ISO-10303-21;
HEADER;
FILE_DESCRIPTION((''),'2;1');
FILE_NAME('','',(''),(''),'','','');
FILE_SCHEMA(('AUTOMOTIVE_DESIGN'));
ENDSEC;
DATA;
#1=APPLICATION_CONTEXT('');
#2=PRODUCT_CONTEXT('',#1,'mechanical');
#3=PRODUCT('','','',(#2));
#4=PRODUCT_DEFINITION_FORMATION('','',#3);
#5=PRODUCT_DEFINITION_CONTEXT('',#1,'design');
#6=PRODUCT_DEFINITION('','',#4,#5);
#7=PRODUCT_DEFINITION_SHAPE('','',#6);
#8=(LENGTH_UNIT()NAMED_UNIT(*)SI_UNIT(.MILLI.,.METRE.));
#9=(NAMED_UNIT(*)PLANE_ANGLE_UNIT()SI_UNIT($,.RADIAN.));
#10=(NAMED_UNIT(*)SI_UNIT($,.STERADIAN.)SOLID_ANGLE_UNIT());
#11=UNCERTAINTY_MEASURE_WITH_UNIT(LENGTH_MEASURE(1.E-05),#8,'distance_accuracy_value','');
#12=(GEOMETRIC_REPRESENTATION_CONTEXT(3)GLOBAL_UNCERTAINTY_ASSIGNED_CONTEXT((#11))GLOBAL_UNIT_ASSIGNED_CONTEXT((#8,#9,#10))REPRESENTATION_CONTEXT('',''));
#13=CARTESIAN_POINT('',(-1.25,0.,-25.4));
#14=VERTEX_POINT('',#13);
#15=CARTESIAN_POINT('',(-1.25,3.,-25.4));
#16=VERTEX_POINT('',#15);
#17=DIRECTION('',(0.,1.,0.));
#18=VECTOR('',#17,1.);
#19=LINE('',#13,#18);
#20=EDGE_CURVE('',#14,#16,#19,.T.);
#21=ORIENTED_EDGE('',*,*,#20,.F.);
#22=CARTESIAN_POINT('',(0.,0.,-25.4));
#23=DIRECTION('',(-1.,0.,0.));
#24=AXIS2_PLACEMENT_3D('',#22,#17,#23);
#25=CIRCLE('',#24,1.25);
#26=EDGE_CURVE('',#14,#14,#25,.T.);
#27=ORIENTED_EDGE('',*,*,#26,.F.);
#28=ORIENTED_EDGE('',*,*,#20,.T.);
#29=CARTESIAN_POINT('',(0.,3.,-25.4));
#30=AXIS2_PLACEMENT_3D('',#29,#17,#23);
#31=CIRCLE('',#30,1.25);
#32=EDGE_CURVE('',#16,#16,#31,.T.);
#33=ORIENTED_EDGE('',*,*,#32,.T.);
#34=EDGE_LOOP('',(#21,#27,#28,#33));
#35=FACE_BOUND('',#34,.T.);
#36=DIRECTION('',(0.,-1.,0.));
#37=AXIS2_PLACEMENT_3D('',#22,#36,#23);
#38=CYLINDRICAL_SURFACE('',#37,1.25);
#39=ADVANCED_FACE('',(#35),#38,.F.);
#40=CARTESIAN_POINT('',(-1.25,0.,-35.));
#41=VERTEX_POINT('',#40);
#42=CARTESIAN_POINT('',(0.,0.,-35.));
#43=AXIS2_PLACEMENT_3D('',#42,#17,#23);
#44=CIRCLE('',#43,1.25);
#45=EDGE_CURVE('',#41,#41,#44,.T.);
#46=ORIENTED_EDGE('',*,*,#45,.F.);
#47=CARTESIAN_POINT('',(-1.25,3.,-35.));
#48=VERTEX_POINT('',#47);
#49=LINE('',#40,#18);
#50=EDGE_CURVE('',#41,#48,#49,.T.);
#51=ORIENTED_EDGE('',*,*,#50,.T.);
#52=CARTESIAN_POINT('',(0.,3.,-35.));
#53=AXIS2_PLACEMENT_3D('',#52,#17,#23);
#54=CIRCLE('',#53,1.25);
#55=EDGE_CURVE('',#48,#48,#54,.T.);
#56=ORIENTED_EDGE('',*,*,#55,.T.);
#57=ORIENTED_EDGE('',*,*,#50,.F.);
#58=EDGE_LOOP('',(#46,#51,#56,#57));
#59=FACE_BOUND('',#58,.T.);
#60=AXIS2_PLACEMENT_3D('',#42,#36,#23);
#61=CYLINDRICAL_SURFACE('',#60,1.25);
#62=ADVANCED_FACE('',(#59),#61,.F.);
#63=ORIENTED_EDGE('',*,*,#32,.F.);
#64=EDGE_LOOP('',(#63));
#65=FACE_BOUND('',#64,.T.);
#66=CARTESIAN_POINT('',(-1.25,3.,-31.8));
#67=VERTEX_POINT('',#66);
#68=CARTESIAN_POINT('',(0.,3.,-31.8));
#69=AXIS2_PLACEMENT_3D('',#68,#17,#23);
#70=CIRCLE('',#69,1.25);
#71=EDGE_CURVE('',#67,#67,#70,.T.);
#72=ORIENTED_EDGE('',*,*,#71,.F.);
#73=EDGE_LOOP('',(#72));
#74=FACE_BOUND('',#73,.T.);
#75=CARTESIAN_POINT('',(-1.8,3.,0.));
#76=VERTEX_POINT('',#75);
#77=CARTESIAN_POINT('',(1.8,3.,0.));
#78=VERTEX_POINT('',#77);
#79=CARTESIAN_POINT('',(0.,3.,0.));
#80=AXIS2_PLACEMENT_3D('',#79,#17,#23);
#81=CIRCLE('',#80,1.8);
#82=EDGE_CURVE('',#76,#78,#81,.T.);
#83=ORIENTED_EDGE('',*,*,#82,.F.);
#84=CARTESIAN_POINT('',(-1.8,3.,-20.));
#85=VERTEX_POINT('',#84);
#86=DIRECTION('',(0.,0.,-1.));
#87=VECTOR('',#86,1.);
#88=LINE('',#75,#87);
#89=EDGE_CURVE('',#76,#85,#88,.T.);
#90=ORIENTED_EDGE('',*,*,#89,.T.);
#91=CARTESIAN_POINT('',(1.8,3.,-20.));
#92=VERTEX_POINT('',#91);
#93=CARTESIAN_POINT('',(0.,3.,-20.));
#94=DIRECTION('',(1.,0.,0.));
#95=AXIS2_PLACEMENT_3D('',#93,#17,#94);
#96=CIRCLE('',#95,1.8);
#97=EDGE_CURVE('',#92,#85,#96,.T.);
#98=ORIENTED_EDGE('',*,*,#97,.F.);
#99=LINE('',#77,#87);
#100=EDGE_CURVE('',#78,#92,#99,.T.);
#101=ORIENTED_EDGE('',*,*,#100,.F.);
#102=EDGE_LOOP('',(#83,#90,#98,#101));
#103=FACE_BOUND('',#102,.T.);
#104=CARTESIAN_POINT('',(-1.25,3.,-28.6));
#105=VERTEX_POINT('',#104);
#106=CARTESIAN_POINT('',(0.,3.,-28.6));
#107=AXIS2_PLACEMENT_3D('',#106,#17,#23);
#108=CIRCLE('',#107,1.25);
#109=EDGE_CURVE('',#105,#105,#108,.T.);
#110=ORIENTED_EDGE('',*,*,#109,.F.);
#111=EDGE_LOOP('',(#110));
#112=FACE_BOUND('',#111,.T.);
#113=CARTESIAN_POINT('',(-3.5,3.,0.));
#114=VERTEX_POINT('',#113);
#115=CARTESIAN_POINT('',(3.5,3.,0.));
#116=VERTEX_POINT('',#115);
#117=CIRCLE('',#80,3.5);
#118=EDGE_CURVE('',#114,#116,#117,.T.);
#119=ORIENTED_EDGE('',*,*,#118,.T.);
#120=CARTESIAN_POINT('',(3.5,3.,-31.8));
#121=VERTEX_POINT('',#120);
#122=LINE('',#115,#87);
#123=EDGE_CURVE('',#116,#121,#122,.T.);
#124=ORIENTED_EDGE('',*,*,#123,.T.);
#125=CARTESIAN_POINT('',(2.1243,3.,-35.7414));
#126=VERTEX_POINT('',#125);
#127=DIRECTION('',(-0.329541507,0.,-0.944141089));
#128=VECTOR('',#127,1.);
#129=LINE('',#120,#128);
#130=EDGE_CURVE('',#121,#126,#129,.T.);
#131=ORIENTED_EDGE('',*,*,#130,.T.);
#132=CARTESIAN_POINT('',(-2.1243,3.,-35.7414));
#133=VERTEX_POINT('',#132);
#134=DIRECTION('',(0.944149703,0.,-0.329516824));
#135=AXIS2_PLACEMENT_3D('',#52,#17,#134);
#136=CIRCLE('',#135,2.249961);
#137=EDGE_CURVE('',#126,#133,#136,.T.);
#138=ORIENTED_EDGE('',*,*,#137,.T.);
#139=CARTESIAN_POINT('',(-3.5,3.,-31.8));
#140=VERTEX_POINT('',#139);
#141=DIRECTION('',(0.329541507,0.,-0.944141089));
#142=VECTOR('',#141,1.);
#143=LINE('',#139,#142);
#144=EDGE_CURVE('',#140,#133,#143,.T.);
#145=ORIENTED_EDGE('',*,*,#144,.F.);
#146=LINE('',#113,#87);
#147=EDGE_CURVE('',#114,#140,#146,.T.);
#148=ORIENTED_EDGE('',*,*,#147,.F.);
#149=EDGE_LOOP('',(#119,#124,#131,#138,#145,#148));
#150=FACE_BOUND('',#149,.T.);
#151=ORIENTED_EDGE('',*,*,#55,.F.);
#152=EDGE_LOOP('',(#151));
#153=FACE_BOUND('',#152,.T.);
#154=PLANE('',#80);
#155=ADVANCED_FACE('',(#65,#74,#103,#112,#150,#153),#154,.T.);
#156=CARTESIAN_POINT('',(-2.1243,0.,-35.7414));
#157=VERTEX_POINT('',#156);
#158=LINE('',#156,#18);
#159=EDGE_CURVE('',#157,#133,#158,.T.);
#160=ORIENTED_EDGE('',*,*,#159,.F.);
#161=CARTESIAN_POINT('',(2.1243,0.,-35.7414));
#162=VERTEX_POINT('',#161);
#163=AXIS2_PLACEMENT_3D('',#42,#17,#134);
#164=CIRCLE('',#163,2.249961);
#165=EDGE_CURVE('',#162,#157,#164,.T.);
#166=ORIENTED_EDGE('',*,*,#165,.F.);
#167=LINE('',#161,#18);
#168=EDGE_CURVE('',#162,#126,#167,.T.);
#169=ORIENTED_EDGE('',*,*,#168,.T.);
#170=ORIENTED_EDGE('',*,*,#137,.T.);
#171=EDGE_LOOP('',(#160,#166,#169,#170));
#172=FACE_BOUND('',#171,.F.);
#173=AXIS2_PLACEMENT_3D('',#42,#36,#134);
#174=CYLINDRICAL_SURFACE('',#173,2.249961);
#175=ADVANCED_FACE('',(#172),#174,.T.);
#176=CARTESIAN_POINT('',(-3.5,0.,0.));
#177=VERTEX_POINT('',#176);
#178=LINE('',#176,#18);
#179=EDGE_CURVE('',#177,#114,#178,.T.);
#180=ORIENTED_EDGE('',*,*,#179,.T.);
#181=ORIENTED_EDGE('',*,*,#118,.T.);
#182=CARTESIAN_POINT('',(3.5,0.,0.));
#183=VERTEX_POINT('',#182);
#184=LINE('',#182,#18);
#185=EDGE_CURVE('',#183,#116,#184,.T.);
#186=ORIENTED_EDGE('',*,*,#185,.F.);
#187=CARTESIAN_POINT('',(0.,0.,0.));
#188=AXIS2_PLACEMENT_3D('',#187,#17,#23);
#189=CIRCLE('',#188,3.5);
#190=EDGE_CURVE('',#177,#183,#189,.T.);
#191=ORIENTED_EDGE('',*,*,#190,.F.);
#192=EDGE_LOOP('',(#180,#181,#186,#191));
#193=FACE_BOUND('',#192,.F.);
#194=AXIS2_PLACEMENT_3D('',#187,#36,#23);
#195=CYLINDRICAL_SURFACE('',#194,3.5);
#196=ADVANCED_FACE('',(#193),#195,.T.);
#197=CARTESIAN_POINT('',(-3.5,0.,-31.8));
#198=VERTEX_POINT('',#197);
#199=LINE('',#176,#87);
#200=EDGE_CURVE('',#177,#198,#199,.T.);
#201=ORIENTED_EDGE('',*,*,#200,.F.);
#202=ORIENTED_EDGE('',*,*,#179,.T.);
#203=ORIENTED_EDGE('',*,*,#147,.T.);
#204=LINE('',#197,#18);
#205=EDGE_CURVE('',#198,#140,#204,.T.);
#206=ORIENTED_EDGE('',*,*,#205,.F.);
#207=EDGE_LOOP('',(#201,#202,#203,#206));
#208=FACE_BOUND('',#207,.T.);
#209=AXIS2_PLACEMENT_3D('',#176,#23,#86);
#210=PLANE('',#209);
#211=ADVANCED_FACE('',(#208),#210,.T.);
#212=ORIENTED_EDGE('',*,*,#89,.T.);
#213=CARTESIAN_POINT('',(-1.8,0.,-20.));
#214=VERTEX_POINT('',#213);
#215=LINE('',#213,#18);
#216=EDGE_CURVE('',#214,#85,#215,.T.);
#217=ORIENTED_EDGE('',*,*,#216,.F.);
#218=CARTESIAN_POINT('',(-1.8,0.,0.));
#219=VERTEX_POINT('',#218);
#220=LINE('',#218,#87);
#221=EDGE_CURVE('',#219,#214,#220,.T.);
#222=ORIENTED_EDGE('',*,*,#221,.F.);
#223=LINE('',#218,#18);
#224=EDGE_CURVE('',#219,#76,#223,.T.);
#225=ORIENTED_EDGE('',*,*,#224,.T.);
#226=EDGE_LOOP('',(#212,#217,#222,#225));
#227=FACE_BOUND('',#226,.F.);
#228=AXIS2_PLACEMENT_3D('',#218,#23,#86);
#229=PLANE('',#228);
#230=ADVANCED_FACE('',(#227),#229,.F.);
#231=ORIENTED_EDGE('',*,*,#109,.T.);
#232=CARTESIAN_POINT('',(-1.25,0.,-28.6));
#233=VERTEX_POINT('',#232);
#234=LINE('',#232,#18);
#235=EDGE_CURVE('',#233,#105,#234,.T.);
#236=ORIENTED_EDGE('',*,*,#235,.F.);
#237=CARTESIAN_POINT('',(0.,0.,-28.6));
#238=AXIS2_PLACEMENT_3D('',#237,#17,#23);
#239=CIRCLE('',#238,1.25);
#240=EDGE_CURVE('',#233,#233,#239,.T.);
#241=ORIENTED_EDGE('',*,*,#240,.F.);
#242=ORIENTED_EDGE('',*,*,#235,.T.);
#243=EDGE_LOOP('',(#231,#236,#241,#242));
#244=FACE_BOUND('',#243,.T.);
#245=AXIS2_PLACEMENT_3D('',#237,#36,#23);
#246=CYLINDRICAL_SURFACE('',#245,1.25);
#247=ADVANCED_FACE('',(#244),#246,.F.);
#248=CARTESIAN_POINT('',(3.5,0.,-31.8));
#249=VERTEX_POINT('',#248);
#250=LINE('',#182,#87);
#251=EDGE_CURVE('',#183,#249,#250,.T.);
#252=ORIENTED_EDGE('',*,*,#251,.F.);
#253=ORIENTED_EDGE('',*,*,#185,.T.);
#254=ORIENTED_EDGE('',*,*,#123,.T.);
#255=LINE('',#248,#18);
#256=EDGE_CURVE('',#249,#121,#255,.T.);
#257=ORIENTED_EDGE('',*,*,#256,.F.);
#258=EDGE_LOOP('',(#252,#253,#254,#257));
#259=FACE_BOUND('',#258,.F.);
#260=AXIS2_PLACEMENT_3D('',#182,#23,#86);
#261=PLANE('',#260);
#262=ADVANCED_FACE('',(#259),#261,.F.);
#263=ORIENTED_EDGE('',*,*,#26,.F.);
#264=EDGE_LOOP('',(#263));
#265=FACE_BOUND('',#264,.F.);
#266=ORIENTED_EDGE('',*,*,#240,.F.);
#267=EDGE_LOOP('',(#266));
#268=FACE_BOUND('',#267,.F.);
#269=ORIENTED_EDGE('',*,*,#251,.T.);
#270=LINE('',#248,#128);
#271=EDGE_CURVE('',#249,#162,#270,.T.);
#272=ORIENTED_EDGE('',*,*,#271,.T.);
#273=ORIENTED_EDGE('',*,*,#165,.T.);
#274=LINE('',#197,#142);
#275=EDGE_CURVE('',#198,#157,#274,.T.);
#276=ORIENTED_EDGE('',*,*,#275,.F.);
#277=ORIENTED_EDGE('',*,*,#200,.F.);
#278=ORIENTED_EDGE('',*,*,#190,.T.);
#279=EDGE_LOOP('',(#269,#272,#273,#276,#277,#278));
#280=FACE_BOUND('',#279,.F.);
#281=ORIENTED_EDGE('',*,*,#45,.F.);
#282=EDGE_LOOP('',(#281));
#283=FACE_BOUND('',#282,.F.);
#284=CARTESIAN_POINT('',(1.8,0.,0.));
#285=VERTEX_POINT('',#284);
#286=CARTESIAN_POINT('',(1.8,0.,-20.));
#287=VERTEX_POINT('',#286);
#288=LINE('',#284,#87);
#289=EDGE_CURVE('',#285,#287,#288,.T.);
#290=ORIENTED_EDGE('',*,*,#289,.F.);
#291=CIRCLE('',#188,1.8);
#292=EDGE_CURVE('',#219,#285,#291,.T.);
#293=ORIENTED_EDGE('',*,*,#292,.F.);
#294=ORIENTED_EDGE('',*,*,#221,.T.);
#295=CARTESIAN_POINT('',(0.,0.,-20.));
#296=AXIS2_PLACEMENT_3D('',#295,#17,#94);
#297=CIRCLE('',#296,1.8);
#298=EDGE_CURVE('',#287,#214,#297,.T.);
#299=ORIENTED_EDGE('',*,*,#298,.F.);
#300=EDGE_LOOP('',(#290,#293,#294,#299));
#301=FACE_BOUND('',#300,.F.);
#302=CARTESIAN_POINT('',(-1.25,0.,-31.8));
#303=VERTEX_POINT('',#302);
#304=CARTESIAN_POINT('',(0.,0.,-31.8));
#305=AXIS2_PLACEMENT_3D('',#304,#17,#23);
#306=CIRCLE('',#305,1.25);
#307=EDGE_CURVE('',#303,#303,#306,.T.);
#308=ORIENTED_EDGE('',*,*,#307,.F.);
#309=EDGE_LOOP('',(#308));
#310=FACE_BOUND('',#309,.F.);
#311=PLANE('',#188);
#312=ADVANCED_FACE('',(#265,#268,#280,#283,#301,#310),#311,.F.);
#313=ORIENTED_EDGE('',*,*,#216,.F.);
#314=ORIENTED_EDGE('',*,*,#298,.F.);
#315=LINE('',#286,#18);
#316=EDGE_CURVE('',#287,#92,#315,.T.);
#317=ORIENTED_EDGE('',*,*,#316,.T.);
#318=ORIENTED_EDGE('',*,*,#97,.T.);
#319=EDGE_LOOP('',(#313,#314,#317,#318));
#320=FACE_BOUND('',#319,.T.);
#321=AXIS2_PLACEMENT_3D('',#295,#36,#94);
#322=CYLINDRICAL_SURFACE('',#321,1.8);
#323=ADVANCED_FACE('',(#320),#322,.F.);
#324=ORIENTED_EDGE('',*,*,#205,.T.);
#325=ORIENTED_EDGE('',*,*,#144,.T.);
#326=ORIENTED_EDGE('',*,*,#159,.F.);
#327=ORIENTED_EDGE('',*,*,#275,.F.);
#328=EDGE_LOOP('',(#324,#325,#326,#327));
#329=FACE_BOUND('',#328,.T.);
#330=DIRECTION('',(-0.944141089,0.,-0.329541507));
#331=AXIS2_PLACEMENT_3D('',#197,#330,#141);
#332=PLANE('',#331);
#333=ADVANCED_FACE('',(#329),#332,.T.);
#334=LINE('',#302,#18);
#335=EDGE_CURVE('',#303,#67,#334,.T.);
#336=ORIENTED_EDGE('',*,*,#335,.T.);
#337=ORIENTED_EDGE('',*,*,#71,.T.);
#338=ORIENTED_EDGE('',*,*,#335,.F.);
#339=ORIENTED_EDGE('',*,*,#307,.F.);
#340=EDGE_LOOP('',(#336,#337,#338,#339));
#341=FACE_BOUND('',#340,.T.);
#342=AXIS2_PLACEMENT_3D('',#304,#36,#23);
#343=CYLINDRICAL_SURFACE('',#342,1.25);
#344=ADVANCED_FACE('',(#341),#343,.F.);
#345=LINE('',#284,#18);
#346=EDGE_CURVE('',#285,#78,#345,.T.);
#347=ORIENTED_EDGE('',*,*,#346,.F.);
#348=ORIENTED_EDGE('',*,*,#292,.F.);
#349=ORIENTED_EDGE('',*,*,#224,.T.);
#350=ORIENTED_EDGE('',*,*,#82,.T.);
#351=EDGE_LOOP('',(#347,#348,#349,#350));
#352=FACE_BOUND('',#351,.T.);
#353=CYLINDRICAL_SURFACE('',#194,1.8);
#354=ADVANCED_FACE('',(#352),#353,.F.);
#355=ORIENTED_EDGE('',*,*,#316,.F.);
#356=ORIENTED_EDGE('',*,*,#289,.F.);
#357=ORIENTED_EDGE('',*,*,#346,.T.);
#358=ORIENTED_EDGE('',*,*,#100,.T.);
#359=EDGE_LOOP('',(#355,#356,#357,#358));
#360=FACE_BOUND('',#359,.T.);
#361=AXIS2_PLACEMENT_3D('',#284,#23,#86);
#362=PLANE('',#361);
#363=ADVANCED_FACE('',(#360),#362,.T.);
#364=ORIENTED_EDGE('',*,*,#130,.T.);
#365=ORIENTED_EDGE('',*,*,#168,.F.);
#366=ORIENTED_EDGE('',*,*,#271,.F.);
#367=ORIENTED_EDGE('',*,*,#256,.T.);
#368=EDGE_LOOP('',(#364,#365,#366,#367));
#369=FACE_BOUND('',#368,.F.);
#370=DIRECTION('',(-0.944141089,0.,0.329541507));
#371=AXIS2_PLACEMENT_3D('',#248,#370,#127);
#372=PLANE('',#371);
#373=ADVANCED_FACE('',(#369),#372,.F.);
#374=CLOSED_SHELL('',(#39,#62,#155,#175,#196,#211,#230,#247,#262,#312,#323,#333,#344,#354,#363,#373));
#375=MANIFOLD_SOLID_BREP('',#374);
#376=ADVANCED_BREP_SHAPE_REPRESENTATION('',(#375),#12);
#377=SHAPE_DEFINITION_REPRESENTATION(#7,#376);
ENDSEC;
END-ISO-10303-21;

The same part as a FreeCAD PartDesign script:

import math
import FreeCAD as App
import Part
import Sketcher
Q = App.Units.Quantity

doc = App.newDocument("Part")
body = doc.addObject("PartDesign::Body", "Body")

# Sketch on XZ plane
sketch1 = body.newObject("Sketcher::SketchObject", "Sketch")
sketch1.AttachmentSupport = (doc.getObject("XZ_Plane"), [""])
sketch1.MapMode = "FlatFace"
sketch1.addGeometry([
    Part.LineSegment(App.Vector(-3.5, -31.8, 0), App.Vector(-3.5, 0, 0)),  # 0
    Part.ArcOfCircle(Part.Circle(App.Vector(0, 0, 0), App.Vector(0, 0, 1), 3.5), math.radians(0), math.radians(180)),  # 1
    Part.LineSegment(App.Vector(3.5, 0, 0), App.Vector(3.5, -31.8, 0)),  # 2
    Part.LineSegment(App.Vector(3.5, -31.8, 0), App.Vector(2.1, -35.7, 0)),  # 3
    Part.ArcOfCircle(Part.Circle(App.Vector(0, -35, 0), App.Vector(0, 0, 1), 2.2), math.radians(-161), math.radians(-19)),  # 4
    Part.LineSegment(App.Vector(-2.1, -35.7, 0), App.Vector(-3.5, -31.8, 0)),  # 5
    Part.Circle(App.Vector(0, -35, 0), App.Vector(0, 0, 1), 1.2),  # 6
    Part.Circle(App.Vector(0, -31.8, 0), App.Vector(0, 0, 1), 1.2),  # 7
    Part.Circle(App.Vector(0, -28.6, 0), App.Vector(0, 0, 1), 1.2),  # 8
    Part.Circle(App.Vector(0, -25.4, 0), App.Vector(0, 0, 1), 1.2),  # 9
    Part.ArcOfCircle(Part.Circle(App.Vector(0, 0, 0), App.Vector(0, 0, 1), 1.8), math.radians(0), math.radians(180)),  # 10
    Part.LineSegment(App.Vector(-1.8, 0, 0), App.Vector(-1.8, -20, 0)),  # 11
    Part.ArcOfCircle(Part.Circle(App.Vector(0, -20, 0), App.Vector(0, 0, 1), 1.8), math.radians(180), math.radians(360)),  # 12
    Part.LineSegment(App.Vector(1.8, -20, 0), App.Vector(1.8, 0, 0)),  # 13
], False)
sketch1.addConstraint([
    Sketcher.Constraint("Tangent", 0, 2, 1, 2),
    Sketcher.Constraint("Tangent", 1, 1, 2, 1),
    Sketcher.Constraint("Coincident", 2, 2, 3, 1),
    Sketcher.Constraint("Tangent", 3, 2, 4, 2),
    Sketcher.Constraint("Tangent", 4, 1, 5, 1),
    Sketcher.Constraint("Coincident", 5, 2, 0, 1),
    Sketcher.Constraint("Tangent", 10, 2, 11, 1),
    Sketcher.Constraint("Tangent", 11, 2, 12, 1),
    Sketcher.Constraint("Tangent", 12, 2, 13, 1),
    Sketcher.Constraint("Tangent", 13, 2, 10, 1),
    Sketcher.Constraint("Vertical", 0),
    Sketcher.Constraint("Vertical", 2),
    Sketcher.Constraint("Vertical", 11),
    Sketcher.Constraint("Vertical", 13),
    Sketcher.Constraint("Coincident", 1, 3, -1, 1),
    Sketcher.Constraint("Coincident", 10, 3, -1, 1),
    Sketcher.Constraint("Coincident", 6, 3, 4, 3),
    Sketcher.Constraint("Equal", 6, 7),
    Sketcher.Constraint("Equal", 7, 8),
    Sketcher.Constraint("Equal", 8, 9),
    Sketcher.Constraint("Symmetric", 3, 2, 4, 1, -2),
    Sketcher.Constraint("PointOnObject", 7, 3, -2),
    Sketcher.Constraint("PointOnObject", 8, 3, -2),
    Sketcher.Constraint("PointOnObject", 9, 3, -2),
    Sketcher.Constraint("Horizontal", 7, 3, 2, 2),
    Sketcher.Constraint("Diameter", 6, Q("2.5 mm")),
    Sketcher.Constraint("Radius", 1, Q("3.5 mm")),
    Sketcher.Constraint("Radius", 10, Q("1.8 mm")),
    Sketcher.Constraint("DistanceY", 11, 2, 11, 1, Q("20 mm")),
    Sketcher.Constraint("DistanceY", 4, 3, 12, 3, Q("15 mm")),
    Sketcher.Constraint("DistanceY", 4, 3, 7, 3, Q("3.2 mm")),
    Sketcher.Constraint("DistanceY", 7, 3, 8, 3, Q("3.2 mm")),
    Sketcher.Constraint("DistanceY", 8, 3, 9, 3, Q("3.2 mm")),
    Sketcher.Constraint("Radius", 4, Q("2.25 mm")),
])
pad1 = body.newObject("PartDesign::Pad", "Pad")
pad1.Profile = sketch1
pad1.Length = 3
pad1.Reversed = True

doc.recompute()
